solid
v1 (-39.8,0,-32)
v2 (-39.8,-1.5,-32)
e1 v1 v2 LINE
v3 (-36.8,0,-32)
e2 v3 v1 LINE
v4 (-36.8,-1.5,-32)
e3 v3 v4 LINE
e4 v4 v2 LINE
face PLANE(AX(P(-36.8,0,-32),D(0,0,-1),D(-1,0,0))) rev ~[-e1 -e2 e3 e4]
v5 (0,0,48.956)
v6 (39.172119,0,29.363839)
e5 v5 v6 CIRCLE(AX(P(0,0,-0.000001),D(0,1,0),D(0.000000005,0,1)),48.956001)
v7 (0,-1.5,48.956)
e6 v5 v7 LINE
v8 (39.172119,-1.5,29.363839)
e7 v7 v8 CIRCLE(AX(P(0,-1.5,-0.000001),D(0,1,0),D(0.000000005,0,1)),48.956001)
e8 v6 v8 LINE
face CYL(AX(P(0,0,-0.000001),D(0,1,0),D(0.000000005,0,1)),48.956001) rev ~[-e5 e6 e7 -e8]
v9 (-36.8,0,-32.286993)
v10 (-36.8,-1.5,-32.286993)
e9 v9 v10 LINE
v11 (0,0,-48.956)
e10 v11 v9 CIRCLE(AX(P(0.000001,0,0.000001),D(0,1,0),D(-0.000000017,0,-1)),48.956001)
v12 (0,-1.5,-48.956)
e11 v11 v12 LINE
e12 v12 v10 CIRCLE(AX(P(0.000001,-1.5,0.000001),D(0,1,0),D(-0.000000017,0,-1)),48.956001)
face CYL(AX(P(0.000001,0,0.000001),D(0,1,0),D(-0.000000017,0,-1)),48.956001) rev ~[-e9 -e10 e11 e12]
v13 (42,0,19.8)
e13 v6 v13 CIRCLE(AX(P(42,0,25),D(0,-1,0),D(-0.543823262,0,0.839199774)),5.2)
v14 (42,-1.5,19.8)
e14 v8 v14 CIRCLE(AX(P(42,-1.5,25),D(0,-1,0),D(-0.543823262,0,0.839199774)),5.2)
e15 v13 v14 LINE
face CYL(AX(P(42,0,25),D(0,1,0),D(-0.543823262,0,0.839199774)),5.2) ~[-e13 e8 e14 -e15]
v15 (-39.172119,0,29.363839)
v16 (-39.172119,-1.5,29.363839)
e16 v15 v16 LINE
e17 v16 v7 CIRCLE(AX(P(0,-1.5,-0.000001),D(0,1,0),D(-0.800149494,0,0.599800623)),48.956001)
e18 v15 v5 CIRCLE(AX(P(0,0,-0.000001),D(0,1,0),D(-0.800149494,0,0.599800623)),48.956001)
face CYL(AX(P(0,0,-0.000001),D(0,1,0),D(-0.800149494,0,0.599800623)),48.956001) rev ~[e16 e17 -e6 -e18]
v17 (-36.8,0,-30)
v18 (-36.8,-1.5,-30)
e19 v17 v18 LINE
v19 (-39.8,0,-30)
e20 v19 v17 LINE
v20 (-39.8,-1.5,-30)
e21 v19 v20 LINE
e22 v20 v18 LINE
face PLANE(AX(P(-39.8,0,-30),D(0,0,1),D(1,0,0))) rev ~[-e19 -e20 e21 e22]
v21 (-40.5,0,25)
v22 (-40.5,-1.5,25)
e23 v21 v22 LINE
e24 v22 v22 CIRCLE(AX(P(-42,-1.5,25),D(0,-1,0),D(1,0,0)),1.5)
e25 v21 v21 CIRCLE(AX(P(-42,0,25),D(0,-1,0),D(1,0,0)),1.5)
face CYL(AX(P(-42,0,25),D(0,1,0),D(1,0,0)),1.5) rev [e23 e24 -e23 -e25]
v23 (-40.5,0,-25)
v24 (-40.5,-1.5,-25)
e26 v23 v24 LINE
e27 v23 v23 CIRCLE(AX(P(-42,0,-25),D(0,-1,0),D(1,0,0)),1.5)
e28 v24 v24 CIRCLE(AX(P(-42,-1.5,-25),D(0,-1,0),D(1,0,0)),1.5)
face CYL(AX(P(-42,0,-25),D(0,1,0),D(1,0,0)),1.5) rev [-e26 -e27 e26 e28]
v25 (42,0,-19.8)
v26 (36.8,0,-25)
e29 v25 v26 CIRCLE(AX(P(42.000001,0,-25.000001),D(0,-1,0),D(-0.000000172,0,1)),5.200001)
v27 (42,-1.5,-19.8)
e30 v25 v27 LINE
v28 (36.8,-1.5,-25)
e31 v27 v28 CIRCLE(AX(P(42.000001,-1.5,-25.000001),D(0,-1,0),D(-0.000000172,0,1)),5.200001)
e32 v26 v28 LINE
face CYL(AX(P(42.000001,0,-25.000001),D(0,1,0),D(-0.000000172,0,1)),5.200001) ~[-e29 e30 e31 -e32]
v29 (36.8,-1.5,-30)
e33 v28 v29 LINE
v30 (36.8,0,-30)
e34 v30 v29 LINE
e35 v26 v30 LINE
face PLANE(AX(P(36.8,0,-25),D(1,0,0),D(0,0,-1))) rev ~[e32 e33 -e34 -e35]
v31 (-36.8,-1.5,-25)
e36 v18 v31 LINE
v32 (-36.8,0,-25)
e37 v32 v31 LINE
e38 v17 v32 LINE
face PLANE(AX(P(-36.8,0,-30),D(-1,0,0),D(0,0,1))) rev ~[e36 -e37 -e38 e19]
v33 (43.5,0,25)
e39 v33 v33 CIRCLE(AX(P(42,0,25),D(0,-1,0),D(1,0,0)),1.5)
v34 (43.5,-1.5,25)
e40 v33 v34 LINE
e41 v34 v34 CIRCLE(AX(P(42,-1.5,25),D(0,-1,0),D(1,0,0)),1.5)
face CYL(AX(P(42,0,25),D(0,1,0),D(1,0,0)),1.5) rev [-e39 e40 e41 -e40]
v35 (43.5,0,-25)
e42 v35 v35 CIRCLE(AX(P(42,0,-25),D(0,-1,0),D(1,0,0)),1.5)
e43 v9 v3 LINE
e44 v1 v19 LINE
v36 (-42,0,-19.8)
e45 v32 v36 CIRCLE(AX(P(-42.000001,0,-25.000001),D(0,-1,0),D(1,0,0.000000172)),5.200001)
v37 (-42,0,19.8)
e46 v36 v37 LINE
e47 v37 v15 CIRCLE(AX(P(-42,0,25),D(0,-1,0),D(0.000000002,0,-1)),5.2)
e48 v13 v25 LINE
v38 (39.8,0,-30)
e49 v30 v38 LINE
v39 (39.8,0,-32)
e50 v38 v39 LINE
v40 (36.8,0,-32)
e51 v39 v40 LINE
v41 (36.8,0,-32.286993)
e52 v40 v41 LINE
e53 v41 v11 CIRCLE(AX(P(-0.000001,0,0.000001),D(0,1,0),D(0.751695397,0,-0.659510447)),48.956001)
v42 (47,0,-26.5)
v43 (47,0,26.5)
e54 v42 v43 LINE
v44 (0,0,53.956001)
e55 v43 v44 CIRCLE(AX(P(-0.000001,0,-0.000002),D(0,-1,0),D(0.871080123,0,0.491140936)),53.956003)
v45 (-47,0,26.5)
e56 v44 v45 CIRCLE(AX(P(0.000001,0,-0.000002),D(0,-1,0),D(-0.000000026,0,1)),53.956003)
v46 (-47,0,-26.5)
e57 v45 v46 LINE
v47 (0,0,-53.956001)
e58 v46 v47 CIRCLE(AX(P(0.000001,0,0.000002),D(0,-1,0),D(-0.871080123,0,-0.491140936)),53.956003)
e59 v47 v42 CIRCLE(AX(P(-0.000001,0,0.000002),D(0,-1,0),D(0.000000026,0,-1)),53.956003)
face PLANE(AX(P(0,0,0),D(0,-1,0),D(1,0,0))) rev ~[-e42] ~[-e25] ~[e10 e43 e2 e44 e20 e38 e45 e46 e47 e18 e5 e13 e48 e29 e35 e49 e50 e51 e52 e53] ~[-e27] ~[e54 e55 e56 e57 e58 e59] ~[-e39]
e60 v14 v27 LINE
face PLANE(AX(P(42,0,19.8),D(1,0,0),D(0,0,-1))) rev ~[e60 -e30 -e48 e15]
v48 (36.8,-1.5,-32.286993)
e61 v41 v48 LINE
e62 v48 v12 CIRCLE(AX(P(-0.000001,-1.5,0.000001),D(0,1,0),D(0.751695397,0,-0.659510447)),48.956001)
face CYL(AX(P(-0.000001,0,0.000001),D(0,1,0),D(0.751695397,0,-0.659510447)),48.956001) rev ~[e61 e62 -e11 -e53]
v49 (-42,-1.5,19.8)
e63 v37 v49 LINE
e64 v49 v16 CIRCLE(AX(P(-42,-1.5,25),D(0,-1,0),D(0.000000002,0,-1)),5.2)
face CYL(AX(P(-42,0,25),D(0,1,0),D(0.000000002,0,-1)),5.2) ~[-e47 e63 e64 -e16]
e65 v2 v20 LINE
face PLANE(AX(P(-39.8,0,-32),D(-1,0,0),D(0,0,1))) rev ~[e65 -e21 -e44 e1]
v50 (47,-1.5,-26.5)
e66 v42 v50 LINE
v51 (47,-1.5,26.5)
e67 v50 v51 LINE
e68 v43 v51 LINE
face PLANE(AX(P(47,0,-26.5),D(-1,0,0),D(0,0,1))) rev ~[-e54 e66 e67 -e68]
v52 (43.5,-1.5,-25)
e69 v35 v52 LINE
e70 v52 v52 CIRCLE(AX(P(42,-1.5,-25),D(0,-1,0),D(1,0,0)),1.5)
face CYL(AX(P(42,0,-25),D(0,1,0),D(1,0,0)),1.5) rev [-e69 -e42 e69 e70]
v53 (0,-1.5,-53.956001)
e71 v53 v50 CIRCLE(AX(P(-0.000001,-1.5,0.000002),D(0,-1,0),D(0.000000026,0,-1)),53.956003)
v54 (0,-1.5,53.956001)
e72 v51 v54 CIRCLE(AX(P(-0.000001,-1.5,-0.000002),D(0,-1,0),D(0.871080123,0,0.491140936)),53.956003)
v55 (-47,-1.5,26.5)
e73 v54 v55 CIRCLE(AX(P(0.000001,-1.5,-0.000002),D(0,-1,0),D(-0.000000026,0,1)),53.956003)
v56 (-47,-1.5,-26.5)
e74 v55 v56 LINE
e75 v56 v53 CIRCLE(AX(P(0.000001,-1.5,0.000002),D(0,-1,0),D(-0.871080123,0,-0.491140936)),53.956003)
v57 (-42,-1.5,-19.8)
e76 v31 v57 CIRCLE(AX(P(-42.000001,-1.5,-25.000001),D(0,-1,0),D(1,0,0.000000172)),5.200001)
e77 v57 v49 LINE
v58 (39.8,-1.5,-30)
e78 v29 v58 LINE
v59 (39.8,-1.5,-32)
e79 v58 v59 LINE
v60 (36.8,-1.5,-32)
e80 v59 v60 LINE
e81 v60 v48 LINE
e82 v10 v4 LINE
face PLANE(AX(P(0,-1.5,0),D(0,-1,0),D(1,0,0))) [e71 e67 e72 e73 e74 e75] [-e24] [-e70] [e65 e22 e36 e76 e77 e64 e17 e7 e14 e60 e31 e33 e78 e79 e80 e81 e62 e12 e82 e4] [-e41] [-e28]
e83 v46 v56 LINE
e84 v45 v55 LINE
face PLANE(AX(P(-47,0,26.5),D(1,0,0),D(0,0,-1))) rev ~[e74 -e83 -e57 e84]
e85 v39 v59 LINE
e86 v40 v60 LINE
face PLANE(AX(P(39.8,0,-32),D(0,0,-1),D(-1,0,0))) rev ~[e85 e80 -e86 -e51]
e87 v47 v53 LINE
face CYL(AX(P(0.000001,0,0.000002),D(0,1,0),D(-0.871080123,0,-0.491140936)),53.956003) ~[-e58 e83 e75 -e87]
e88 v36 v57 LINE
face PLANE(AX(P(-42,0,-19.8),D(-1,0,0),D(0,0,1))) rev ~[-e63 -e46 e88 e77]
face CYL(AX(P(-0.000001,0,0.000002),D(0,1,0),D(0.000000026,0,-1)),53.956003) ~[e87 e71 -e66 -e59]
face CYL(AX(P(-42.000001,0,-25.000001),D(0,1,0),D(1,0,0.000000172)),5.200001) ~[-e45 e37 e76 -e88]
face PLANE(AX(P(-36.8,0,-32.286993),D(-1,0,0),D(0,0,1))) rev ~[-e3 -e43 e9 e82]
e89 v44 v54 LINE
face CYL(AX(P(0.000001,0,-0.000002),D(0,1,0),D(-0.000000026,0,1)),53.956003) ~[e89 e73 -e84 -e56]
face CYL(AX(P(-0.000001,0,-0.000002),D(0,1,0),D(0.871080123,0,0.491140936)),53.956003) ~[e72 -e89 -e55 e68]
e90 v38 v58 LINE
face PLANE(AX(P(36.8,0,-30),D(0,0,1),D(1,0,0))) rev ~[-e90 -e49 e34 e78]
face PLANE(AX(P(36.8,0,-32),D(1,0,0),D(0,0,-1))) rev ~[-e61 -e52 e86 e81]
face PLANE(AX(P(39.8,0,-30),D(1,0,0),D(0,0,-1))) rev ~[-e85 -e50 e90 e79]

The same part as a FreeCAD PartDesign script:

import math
import FreeCAD as App
import Part
import Sketcher
from FreeCAD import Vector
Q = App.Units.Quantity

doc = App.newDocument("Part")
body = doc.addObject("PartDesign::Body", "Body")

# Sketch on XZ plane
sketch1 = body.newObject("Sketcher::SketchObject", "Sketch")
sketch1.AttachmentSupport = (doc.getObject("XZ_Plane"), [""])
sketch1.MapMode = "FlatFace"
sketch1.addGeometry([
    Part.ArcOfCircle(Part.Circle(Vector(0.000001, -0.000002, 0), Vector(0, 0, 1), 53.956003), math.radians(90.000001), math.radians(150.5844)),  # 0
    Part.LineSegment(Vector(-47, 26.5, 0), Vector(-47, -26.5, 0)),  # 1
    Part.ArcOfCircle(Part.Circle(Vector(0.000001, 0.000002, 0), Vector(0, 0, 1), 53.956003), math.radians(-150.5844), math.radians(-90.000001)),  # 2
    Part.ArcOfCircle(Part.Circle(Vector(-0.000001, 0.000002, 0), Vector(0, 0, 1), 53.956003), math.radians(-89.999999), math.radians(-29.4156)),  # 3
    Part.LineSegment(Vector(47, -26.5, 0), Vector(47, 26.5, 0)),  # 4
    Part.ArcOfCircle(Part.Circle(Vector(-0.000001, -0.000002, 0), Vector(0, 0, 1), 53.956003), math.radians(29.4156), math.radians(89.999999)),  # 5
    Part.Circle(Vector(-42, -25, 0), Vector(0, 0, 1), 1.5),  # 6
    Part.Circle(Vector(42, -25, 0), Vector(0, 0, 1), 1.5),  # 7
    Part.LineSegment(Vector(-42, -19.8, 0), Vector(-42, 19.8, 0)),  # 8
    Part.ArcOfCircle(Part.Circle(Vector(-42, 25, 0), Vector(0, 0, 1), 5.2), math.radians(-90), math.radians(57.055714)),  # 9
    Part.ArcOfCircle(Part.Circle(Vector(0, -0.000001, 0), Vector(0, 0, 1), 48.956001), math.radians(90), math.radians(143.14438)),  # 10
    Part.ArcOfCircle(Part.Circle(Vector(0, -0.000001, 0), Vector(0, 0, 1), 48.956001), math.radians(36.85562), math.radians(90)),  # 11
    Part.ArcOfCircle(Part.Circle(Vector(42, 25, 0), Vector(0, 0, 1), 5.2), math.radians(122.944286), math.radians(270)),  # 12
    Part.LineSegment(Vector(42, 19.8, 0), Vector(42, -19.8, 0)),  # 13
    Part.ArcOfCircle(Part.Circle(Vector(42.000001, -25.000001, 0), Vector(0, 0, 1), 5.200001), math.radians(90.00001), math.radians(179.99999)),  # 14
    Part.LineSegment(Vector(36.8, -25, 0), Vector(36.8, -30, 0)),  # 15
    Part.LineSegment(Vector(36.8, -30, 0), Vector(39.8, -30, 0)),  # 16
    Part.LineSegment(Vector(39.8, -30, 0), Vector(39.8, -32, 0)),  # 17
    Part.LineSegment(Vector(39.8, -32, 0), Vector(36.8, -32, 0)),  # 18
    Part.LineSegment(Vector(36.8, -32, 0), Vector(36.8, -32.286993, 0)),  # 19
    Part.ArcOfCircle(Part.Circle(Vector(-0.000001, 0.000001, 0), Vector(0, 0, 1), 48.956001), math.radians(-89.999999), math.radians(-41.262547)),  # 20
    Part.ArcOfCircle(Part.Circle(Vector(0.000001, 0.000001, 0), Vector(0, 0, 1), 48.956001), math.radians(-138.737453), math.radians(-90.000001)),  # 21
    Part.LineSegment(Vector(-36.8, -32.286993, 0), Vector(-36.8, -32, 0)),  # 22
    Part.LineSegment(Vector(-36.8, -32, 0), Vector(-39.8, -32, 0)),  # 23
    Part.LineSegment(Vector(-39.8, -32, 0), Vector(-39.8, -30, 0)),  # 24
    Part.LineSegment(Vector(-39.8, -30, 0), Vector(-36.8, -30, 0)),  # 25
    Part.LineSegment(Vector(-36.8, -30, 0), Vector(-36.8, -25, 0)),  # 26
    Part.ArcOfCircle(Part.Circle(Vector(-42.000001, -25.000001, 0), Vector(0, 0, 1), 5.200001), math.radians(0.00001), math.radians(89.99999)),  # 27
    Part.Circle(Vector(-42, 25, 0), Vector(0, 0, 1), 1.5),  # 28
    Part.Circle(Vector(42, 25, 0), Vector(0, 0, 1), 1.5),  # 29
], False)
sketch1.addConstraint([
    Sketcher.Constraint("Coincident", 0, 2, 1, 1),
    Sketcher.Constraint("Coincident", 1, 2, 2, 1),
    Sketcher.Constraint("Tangent", 2, 2, 3, 1),
    Sketcher.Constraint("Coincident", 3, 2, 4, 1),
    Sketcher.Constraint("Coincident", 4, 2, 5, 1),
    Sketcher.Constraint("Tangent", 5, 2, 0, 1),
    Sketcher.Constraint("Coincident", 8, 2, 9, 1),
    Sketcher.Constraint("Coincident", 9, 2, 10, 2),
    Sketcher.Constraint("Tangent", 10, 1, 11, 2),
    Sketcher.Constraint("Coincident", 11, 1, 12, 1),
    Sketcher.Constraint("Coincident", 12, 2, 13, 1),
    Sketcher.Constraint("Coincident", 13, 2, 14, 1),
    Sketcher.Constraint("Tangent", 14, 2, 15, 1),
    Sketcher.Constraint("Coincident", 15, 2, 16, 1),
    Sketcher.Constraint("Coincident", 16, 2, 17, 1),
    Sketcher.Constraint("Coincident", 17, 2, 18, 1),
    Sketcher.Constraint("Coincident", 18, 2, 19, 1),
    Sketcher.Constraint("Coincident", 19, 2, 20, 2),
    Sketcher.Constraint("Tangent", 20, 1, 21, 2),
    Sketcher.Constraint("Coincident", 21, 1, 22, 1),
    Sketcher.Constraint("Coincident", 22, 2, 23, 1),
    Sketcher.Constraint("Coincident", 23, 2, 24, 1),
    Sketcher.Constraint("Coincident", 24, 2, 25, 1),
    Sketcher.Constraint("Coincident", 25, 2, 26, 1),
    Sketcher.Constraint("Tangent", 26, 2, 27, 1),
    Sketcher.Constraint("Coincident", 27, 2, 8, 1),
    Sketcher.Constraint("Vertical", 1),
    Sketcher.Constraint("Vertical", 4),
    Sketcher.Constraint("Vertical", 8),
    Sketcher.Constraint("Vertical", 13),
    Sketcher.Constraint("Vertical", 15),
    Sketcher.Constraint("Horizontal", 16),
    Sketcher.Constraint("Vertical", 17),
    Sketcher.Constraint("Horizontal", 18),
    Sketcher.Constraint("Vertical", 19),
    Sketcher.Constraint("Vertical", 22),
    Sketcher.Constraint("Horizontal", 23),
    Sketcher.Constraint("Vertical", 24),
    Sketcher.Constraint("Horizontal", 25),
    Sketcher.Constraint("Vertical", 26),
    Sketcher.Constraint("Coincident", 0, 3, -1, 1),
    Sketcher.Constraint("Coincident", 2, 3, -1, 1),
    Sketcher.Constraint("Coincident", 10, 3, -1, 1),
    Sketcher.Constraint("Coincident", 20, 3, -1, 1),
    Sketcher.Constraint("Coincident", 14, 3, 7, 3),
    Sketcher.Constraint("Coincident", 27, 3, 6, 3),
    Sketcher.Constraint("Coincident", 28, 3, 9, 3),
    Sketcher.Constraint("Coincident", 29, 3, 12, 3),
    Sketcher.Constraint("Equal", 0, 2),
    Sketcher.Constraint("Equal", 2, 3),
    Sketcher.Constraint("Equal", 3, 5),
    Sketcher.Constraint("Equal", 6, 7),
    Sketcher.Constraint("Equal", 10, 11),
    Sketcher.Constraint("Equal", 9, 12),
    Sketcher.Constraint("Equal", 12, 14),
    Sketcher.Constraint("Equal", 11, 20),
    Sketcher.Constraint("Equal", 20, 21),
    Sketcher.Constraint("Equal", 14, 27),
    Sketcher.Constraint("Equal", 7, 28),
    Sketcher.Constraint("Equal", 28, 29),
    Sketcher.Constraint("Symmetric", 7, 3, 9, 3, -1, 1),
    Sketcher.Constraint("Symmetric", 6, 3, 12, 3, -1, 1),
    Sketcher.Constraint("Symmetric", 6, 3, 7, 3, -2),
    Sketcher.Constraint("Symmetric", 18, 2, 22, 2, -2),
    Sketcher.Constraint("Symmetric", 16, 2, 24, 2, -2),
    Sketcher.Constraint("PointOnObject", 2, 2, -2),
    Sketcher.Constraint("PointOnObject", 5, 2, -2),
    Sketcher.Constraint("PointOnObject", 10, 1, -2),
    Sketcher.Constraint("PointOnObject", 20, 1, -2),
    Sketcher.Constraint("Horizontal", 1, 2, 3, 2),
    Sketcher.Constraint("Vertical", 28, 3, 8, 2),
    Sketcher.Constraint("Vertical", 29, 3, 12, 2),
    Sketcher.Constraint("Vertical", 15, 2, 18, 2),
    Sketcher.Constraint("Diameter", 6, Q("3 mm")),
    Sketcher.Constraint("Radius", 9, Q("5.2 mm")),
    Sketcher.Constraint("DistanceX", 16, 1, 16, 2, Q("3 mm")),
    Sketcher.Constraint("DistanceY", 1, 2, 1, 1, Q("53 mm")),
    Sketcher.Constraint("DistanceY", 15, 2, 15, 1, Q("5 mm")),
    Sketcher.Constraint("DistanceY", 17, 2, 17, 1, Q("2 mm")),
    Sketcher.Constraint("DistanceY", 8, 1, 8, 2, Q("39.6 mm")),
    Sketcher.Constraint("DistanceX", 6, 3, -1, 1, Q("42 mm")),
    Sketcher.Constraint("DistanceX", 0, 2, -1, 1, Q("47 mm")),
    Sketcher.Constraint("Radius", 10, Q("48.956001 mm")),
])
pad1 = body.newObject("PartDesign::Pad", "Pad")
pad1.Profile = sketch1
pad1.Length = 1.5

doc.recompute()
